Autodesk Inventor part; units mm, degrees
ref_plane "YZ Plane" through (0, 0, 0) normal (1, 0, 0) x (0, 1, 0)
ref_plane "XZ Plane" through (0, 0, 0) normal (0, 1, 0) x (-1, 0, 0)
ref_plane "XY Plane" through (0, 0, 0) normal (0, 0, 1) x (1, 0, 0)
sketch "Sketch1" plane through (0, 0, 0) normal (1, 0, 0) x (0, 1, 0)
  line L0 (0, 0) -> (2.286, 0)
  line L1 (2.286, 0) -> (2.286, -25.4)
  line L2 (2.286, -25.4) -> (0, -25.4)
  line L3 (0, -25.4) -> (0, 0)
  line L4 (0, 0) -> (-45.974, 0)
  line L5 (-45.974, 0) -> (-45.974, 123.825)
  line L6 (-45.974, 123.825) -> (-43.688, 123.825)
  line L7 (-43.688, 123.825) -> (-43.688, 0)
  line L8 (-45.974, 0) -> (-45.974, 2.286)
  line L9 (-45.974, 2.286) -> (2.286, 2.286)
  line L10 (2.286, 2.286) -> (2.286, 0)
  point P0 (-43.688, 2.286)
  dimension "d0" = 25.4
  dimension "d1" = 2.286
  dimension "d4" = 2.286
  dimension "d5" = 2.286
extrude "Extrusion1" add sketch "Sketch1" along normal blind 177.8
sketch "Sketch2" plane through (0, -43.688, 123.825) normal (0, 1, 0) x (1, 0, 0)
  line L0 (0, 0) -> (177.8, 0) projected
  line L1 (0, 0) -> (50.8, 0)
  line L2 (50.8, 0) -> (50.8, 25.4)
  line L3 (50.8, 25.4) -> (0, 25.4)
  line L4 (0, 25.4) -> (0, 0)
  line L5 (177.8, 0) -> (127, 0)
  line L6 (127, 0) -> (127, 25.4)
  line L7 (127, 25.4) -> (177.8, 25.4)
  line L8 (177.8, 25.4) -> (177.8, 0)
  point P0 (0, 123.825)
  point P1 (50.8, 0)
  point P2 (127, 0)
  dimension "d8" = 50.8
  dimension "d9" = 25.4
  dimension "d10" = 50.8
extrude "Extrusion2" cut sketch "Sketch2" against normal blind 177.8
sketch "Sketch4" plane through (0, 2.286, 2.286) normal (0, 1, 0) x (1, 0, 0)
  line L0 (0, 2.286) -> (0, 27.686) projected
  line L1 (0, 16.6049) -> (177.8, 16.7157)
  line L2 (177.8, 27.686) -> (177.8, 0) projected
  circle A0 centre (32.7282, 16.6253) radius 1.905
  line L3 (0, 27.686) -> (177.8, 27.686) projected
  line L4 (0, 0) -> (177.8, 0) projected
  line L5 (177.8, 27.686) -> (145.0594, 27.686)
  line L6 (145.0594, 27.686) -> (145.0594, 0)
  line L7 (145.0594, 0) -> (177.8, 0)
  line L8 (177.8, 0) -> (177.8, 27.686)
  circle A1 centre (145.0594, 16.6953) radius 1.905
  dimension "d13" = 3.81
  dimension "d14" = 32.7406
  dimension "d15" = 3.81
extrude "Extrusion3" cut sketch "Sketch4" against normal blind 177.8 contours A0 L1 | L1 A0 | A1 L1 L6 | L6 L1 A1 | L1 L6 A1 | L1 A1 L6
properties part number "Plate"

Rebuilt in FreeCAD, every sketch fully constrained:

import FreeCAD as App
import Part
import Sketcher

V = App.Vector
Q = App.Units.Quantity

doc = App.newDocument("Part")
params = doc.addObject("Spreadsheet::Sheet", "Params")
for row, (alias, value) in enumerate([
    ("sketch1_height", "1 in"),
    ("sketch1_width", "0.09 in"),
    ("sketch1_width2", "1.81 in"),
    ("sketch1_height2", "4.785 in"),
    ("pad1_length", "7 in"),
    ("sketch2_width", "2 in"),
    ("sketch2_height", "1 in"),
    ("pocket1_length", "7 in"),
    ("sketch3_diameter", "0.15 in"),
    ("pocket2_length", "7 in"),
], start=1):
    params.set(f"A{row}", alias)
    params.set(f"B{row}", "=" + value)
    params.setAlias(f"B{row}", alias)

body = doc.addObject("PartDesign::Body", "Body")

# Sketch on YZ plane
sketch1 = body.newObject("Sketcher::SketchObject", "Sketch")
sketch1.AttachmentSupport = (doc.getObject("YZ_Plane"), [""])
sketch1.MapMode = "FlatFace"
sketch1.addGeometry(Part.LineSegment(V(0, 0, 0), V(0, -25.4, 0)), False)
sketch1.addGeometry(Part.LineSegment(V(0, -25.4, 0), V(2.3, -25.4, 0)), False)
sketch1.addGeometry(Part.LineSegment(V(2.3, -25.4, 0), V(2.3, 2.3, 0)), False)
sketch1.addGeometry(Part.LineSegment(V(2.3, 2.3, 0), V(-43.7, 2.3, 0)), False)
sketch1.addGeometry(Part.LineSegment(V(-43.7, 2.3, 0), V(-43.7, 123.8, 0)), False)
sketch1.addGeometry(Part.LineSegment(V(-43.7, 123.8, 0), V(-46, 123.8, 0)), False)
sketch1.addGeometry(Part.LineSegment(V(-46, 123.8, 0), V(-46, 0, 0)), False)
sketch1.addGeometry(Part.LineSegment(V(-46, 0, 0), V(0, 0, 0)), False)
sketch1.addConstraint(Sketcher.Constraint("Coincident", 0, 2, 1, 1))
sketch1.addConstraint(Sketcher.Constraint("Coincident", 1, 2, 2, 1))
sketch1.addConstraint(Sketcher.Constraint("Coincident", 2, 2, 3, 1))
sketch1.addConstraint(Sketcher.Constraint("Coincident", 3, 2, 4, 1))
sketch1.addConstraint(Sketcher.Constraint("Coincident", 4, 2, 5, 1))
sketch1.addConstraint(Sketcher.Constraint("Coincident", 5, 2, 6, 1))
sketch1.addConstraint(Sketcher.Constraint("Coincident", 6, 2, 7, 1))
sketch1.addConstraint(Sketcher.Constraint("Coincident", 7, 2, 0, 1))
sketch1.addConstraint(Sketcher.Constraint("Vertical", 0))
sketch1.addConstraint(Sketcher.Constraint("Horizontal", 1))
sketch1.addConstraint(Sketcher.Constraint("Vertical", 2))
sketch1.addConstraint(Sketcher.Constraint("Horizontal", 3))
sketch1.addConstraint(Sketcher.Constraint("Vertical", 4))
sketch1.addConstraint(Sketcher.Constraint("Horizontal", 5))
sketch1.addConstraint(Sketcher.Constraint("Vertical", 6))
sketch1.addConstraint(Sketcher.Constraint("Horizontal", 7))
sketch1.addConstraint(Sketcher.Constraint("Coincident", 7, 2, -1, 1))
sketch1.addConstraint(Sketcher.Constraint("Equal", 1, 5))
sketch1.addConstraint(Sketcher.Constraint("DistanceY", 0, 2, 0, 1, Q("1 in")))
sketch1.addConstraint(Sketcher.Constraint("DistanceX", 1, 1, 1, 2, Q("0.09 in")))
sketch1.addConstraint(Sketcher.Constraint("DistanceY", -1, 1, 2, 2, Q("0.09 in")))
sketch1.addConstraint(Sketcher.Constraint("DistanceX", 3, 2, 3, 1, Q("1.81 in")))
sketch1.addConstraint(Sketcher.Constraint("DistanceY", 4, 1, 4, 2, Q("4.785 in")))
sketch1.setExpression("Constraints[18]", "Params.sketch1_height")
sketch1.setExpression("Constraints[19]", "Params.sketch1_width")
sketch1.setExpression("Constraints[21]", "Params.sketch1_width2")
sketch1.setExpression("Constraints[22]", "Params.sketch1_height2")
pad1 = body.newObject("PartDesign::Pad", "Pad")
pad1.Profile = sketch1
pad1.setExpression("Length", "Params.pad1_length")

# Sketch on XZ plane
sketch2 = body.newObject("Sketcher::SketchObject", "Sketch001")
sketch2.AttachmentSupport = (doc.getObject("XZ_Plane"), [""])
sketch2.MapMode = "FlatFace"
sketch2.AttachmentOffset = App.Placement(V(0, 0, 1.72 * 25.4), App.Rotation())
sketch2.addGeometry(Part.LineSegment(V(0, 98, 0), V(0, 124, 0)), False)
sketch2.addGeometry(Part.LineSegment(V(0, 124, 0), V(51, 124, 0)), False)
sketch2.addGeometry(Part.LineSegment(V(51, 124, 0), V(51, 98, 0)), False)
sketch2.addGeometry(Part.LineSegment(V(51, 98, 0), V(0, 98, 0)), False)
sketch2.addGeometry(Part.LineSegment(V(127, 98, 0), V(127, 124, 0)), False)
sketch2.addGeometry(Part.LineSegment(V(127, 124, 0), V(178, 124, 0)), False)
sketch2.addGeometry(Part.LineSegment(V(178, 124, 0), V(178, 98, 0)), False)
sketch2.addGeometry(Part.LineSegment(V(178, 98, 0), V(127, 98, 0)), False)
sketch2.addConstraint(Sketcher.Constraint("Coincident", 0, 2, 1, 1))
sketch2.addConstraint(Sketcher.Constraint("Coincident", 1, 2, 2, 1))
sketch2.addConstraint(Sketcher.Constraint("Coincident", 2, 2, 3, 1))
sketch2.addConstraint(Sketcher.Constraint("Coincident", 3, 2, 0, 1))
sketch2.addConstraint(Sketcher.Constraint("Coincident", 4, 2, 5, 1))
sketch2.addConstraint(Sketcher.Constraint("Coincident", 5, 2, 6, 1))
sketch2.addConstraint(Sketcher.Constraint("Coincident", 6, 2, 7, 1))
sketch2.addConstraint(Sketcher.Constraint("Coincident", 7, 2, 4, 1))
sketch2.addConstraint(Sketcher.Constraint("Vertical", 0))
sketch2.addConstraint(Sketcher.Constraint("Horizontal", 1))
sketch2.addConstraint(Sketcher.Constraint("Vertical", 2))
sketch2.addConstraint(Sketcher.Constraint("Horizontal", 3))
sketch2.addConstraint(Sketcher.Constraint("Vertical", 4))
sketch2.addConstraint(Sketcher.Constraint("Horizontal", 5))
sketch2.addConstraint(Sketcher.Constraint("Vertical", 6))
sketch2.addConstraint(Sketcher.Constraint("Horizontal", 7))
sketch2.addConstraint(Sketcher.Constraint("PointOnObject", 0, 2, -2))
sketch2.addConstraint(Sketcher.Constraint("Horizontal", 1, 2, 4, 2))
sketch2.addConstraint(Sketcher.Constraint("Horizontal", 3, 2, 6, 2))
sketch2.addConstraint(Sketcher.Constraint("Equal", 3, 5))
sketch2.addConstraint(Sketcher.Constraint("DistanceX", 1, 1, 1, 2, Q("2 in")))
sketch2.addConstraint(Sketcher.Constraint("DistanceY", 0, 1, 0, 2, Q("1 in")))
sketch2.addConstraint(Sketcher.Constraint("DistanceX", -1, 1, 4, 2, Q("5 in")))
sketch2.addConstraint(Sketcher.Constraint("DistanceY", -1, 1, 0, 2, Q("4.875 in")))
sketch2.setExpression("Constraints[20]", "Params.sketch2_width")
sketch2.setExpression("Constraints[21]", "Params.sketch2_height")
pocket1 = body.newObject("PartDesign::Pocket", "Pocket")
pocket1.Profile = sketch2
pocket1.setExpression("Length", "Params.pocket1_length")
pocket1.Reversed = True

# Sketch on XZ plane
sketch3 = body.newObject("Sketcher::SketchObject", "Sketch002")
sketch3.AttachmentSupport = (doc.getObject("XZ_Plane"), [""])
sketch3.MapMode = "FlatFace"
sketch3.AttachmentOffset = App.Placement(V(0, 0, -0.09 * 25.4), App.Rotation())
sketch3.addGeometry(Part.Circle(V(32.7, -14.3, 0), V(0, 0, 1), 1.9), False)
sketch3.addGeometry(Part.Circle(V(145.1, -14.4, 0), V(0, 0, 1), 1.9), False)
sketch3.addConstraint(Sketcher.Constraint("Equal", 0, 1))
sketch3.addConstraint(Sketcher.Constraint("Diameter", 0, Q("0.15 in")))
sketch3.addConstraint(Sketcher.Constraint("DistanceX", -1, 1, 1, 3, Q("5.711 in")))
sketch3.addConstraint(Sketcher.Constraint("DistanceX", -1, 1, 0, 3, Q("1.2885 in")))
sketch3.addConstraint(Sketcher.Constraint("DistanceY", 1, 3, -1, 1, Q("0.5673 in")))
sketch3.addConstraint(Sketcher.Constraint("DistanceY", 0, 3, -1, 1, 14.3393))
sketch3.setExpression("Constraints[1]", "Params.sketch3_diameter")
pocket2 = body.newObject("PartDesign::Pocket", "Pocket001")
pocket2.Profile = sketch3
pocket2.setExpression("Length", "Params.pocket2_length")
pocket2.Reversed = True

doc.recompute()
